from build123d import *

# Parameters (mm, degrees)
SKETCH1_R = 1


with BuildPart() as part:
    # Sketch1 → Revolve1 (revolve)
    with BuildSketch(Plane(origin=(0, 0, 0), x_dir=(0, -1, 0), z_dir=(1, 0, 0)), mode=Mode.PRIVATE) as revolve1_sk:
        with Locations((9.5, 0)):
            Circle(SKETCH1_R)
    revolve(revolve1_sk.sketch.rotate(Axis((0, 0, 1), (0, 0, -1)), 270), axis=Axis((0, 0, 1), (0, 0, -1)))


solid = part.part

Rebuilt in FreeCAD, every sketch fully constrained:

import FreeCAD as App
import Part
import Sketcher
from FreeCAD import Vector
Q = App.Units.Quantity

doc = App.newDocument("Part")
body = doc.addObject("PartDesign::Body", "Body")

# Sketch on YZ plane
sketch1 = doc.addObject("Sketcher::SketchObject", "Sketch")
body.addObject(sketch1)
sketch1.AttachmentSupport = (doc.YZ_Plane, [""])
sketch1.MapMode = "FlatFace"
sketch1.addGeometry(Part.Circle(Vector(-9.5, 0, 0), Vector(0, 0, 1), 1), False)
sketch1.addConstraint(Sketcher.Constraint("PointOnObject", 0, 3, -1))
sketch1.addConstraint(Sketcher.Constraint("Diameter", 0, Q("2 mm")))
sketch1.addConstraint(Sketcher.Constraint("DistanceX", 0, 3, -1, 1, Q("9.5 mm")))
revolution = doc.addObject("PartDesign::Revolution", "Revolution")
body.addObject(revolution)
revolution.Profile = sketch1
revolution.ReferenceAxis = (sketch1, ["V_Axis"])
revolution.Angle = 360

doc.recompute()
